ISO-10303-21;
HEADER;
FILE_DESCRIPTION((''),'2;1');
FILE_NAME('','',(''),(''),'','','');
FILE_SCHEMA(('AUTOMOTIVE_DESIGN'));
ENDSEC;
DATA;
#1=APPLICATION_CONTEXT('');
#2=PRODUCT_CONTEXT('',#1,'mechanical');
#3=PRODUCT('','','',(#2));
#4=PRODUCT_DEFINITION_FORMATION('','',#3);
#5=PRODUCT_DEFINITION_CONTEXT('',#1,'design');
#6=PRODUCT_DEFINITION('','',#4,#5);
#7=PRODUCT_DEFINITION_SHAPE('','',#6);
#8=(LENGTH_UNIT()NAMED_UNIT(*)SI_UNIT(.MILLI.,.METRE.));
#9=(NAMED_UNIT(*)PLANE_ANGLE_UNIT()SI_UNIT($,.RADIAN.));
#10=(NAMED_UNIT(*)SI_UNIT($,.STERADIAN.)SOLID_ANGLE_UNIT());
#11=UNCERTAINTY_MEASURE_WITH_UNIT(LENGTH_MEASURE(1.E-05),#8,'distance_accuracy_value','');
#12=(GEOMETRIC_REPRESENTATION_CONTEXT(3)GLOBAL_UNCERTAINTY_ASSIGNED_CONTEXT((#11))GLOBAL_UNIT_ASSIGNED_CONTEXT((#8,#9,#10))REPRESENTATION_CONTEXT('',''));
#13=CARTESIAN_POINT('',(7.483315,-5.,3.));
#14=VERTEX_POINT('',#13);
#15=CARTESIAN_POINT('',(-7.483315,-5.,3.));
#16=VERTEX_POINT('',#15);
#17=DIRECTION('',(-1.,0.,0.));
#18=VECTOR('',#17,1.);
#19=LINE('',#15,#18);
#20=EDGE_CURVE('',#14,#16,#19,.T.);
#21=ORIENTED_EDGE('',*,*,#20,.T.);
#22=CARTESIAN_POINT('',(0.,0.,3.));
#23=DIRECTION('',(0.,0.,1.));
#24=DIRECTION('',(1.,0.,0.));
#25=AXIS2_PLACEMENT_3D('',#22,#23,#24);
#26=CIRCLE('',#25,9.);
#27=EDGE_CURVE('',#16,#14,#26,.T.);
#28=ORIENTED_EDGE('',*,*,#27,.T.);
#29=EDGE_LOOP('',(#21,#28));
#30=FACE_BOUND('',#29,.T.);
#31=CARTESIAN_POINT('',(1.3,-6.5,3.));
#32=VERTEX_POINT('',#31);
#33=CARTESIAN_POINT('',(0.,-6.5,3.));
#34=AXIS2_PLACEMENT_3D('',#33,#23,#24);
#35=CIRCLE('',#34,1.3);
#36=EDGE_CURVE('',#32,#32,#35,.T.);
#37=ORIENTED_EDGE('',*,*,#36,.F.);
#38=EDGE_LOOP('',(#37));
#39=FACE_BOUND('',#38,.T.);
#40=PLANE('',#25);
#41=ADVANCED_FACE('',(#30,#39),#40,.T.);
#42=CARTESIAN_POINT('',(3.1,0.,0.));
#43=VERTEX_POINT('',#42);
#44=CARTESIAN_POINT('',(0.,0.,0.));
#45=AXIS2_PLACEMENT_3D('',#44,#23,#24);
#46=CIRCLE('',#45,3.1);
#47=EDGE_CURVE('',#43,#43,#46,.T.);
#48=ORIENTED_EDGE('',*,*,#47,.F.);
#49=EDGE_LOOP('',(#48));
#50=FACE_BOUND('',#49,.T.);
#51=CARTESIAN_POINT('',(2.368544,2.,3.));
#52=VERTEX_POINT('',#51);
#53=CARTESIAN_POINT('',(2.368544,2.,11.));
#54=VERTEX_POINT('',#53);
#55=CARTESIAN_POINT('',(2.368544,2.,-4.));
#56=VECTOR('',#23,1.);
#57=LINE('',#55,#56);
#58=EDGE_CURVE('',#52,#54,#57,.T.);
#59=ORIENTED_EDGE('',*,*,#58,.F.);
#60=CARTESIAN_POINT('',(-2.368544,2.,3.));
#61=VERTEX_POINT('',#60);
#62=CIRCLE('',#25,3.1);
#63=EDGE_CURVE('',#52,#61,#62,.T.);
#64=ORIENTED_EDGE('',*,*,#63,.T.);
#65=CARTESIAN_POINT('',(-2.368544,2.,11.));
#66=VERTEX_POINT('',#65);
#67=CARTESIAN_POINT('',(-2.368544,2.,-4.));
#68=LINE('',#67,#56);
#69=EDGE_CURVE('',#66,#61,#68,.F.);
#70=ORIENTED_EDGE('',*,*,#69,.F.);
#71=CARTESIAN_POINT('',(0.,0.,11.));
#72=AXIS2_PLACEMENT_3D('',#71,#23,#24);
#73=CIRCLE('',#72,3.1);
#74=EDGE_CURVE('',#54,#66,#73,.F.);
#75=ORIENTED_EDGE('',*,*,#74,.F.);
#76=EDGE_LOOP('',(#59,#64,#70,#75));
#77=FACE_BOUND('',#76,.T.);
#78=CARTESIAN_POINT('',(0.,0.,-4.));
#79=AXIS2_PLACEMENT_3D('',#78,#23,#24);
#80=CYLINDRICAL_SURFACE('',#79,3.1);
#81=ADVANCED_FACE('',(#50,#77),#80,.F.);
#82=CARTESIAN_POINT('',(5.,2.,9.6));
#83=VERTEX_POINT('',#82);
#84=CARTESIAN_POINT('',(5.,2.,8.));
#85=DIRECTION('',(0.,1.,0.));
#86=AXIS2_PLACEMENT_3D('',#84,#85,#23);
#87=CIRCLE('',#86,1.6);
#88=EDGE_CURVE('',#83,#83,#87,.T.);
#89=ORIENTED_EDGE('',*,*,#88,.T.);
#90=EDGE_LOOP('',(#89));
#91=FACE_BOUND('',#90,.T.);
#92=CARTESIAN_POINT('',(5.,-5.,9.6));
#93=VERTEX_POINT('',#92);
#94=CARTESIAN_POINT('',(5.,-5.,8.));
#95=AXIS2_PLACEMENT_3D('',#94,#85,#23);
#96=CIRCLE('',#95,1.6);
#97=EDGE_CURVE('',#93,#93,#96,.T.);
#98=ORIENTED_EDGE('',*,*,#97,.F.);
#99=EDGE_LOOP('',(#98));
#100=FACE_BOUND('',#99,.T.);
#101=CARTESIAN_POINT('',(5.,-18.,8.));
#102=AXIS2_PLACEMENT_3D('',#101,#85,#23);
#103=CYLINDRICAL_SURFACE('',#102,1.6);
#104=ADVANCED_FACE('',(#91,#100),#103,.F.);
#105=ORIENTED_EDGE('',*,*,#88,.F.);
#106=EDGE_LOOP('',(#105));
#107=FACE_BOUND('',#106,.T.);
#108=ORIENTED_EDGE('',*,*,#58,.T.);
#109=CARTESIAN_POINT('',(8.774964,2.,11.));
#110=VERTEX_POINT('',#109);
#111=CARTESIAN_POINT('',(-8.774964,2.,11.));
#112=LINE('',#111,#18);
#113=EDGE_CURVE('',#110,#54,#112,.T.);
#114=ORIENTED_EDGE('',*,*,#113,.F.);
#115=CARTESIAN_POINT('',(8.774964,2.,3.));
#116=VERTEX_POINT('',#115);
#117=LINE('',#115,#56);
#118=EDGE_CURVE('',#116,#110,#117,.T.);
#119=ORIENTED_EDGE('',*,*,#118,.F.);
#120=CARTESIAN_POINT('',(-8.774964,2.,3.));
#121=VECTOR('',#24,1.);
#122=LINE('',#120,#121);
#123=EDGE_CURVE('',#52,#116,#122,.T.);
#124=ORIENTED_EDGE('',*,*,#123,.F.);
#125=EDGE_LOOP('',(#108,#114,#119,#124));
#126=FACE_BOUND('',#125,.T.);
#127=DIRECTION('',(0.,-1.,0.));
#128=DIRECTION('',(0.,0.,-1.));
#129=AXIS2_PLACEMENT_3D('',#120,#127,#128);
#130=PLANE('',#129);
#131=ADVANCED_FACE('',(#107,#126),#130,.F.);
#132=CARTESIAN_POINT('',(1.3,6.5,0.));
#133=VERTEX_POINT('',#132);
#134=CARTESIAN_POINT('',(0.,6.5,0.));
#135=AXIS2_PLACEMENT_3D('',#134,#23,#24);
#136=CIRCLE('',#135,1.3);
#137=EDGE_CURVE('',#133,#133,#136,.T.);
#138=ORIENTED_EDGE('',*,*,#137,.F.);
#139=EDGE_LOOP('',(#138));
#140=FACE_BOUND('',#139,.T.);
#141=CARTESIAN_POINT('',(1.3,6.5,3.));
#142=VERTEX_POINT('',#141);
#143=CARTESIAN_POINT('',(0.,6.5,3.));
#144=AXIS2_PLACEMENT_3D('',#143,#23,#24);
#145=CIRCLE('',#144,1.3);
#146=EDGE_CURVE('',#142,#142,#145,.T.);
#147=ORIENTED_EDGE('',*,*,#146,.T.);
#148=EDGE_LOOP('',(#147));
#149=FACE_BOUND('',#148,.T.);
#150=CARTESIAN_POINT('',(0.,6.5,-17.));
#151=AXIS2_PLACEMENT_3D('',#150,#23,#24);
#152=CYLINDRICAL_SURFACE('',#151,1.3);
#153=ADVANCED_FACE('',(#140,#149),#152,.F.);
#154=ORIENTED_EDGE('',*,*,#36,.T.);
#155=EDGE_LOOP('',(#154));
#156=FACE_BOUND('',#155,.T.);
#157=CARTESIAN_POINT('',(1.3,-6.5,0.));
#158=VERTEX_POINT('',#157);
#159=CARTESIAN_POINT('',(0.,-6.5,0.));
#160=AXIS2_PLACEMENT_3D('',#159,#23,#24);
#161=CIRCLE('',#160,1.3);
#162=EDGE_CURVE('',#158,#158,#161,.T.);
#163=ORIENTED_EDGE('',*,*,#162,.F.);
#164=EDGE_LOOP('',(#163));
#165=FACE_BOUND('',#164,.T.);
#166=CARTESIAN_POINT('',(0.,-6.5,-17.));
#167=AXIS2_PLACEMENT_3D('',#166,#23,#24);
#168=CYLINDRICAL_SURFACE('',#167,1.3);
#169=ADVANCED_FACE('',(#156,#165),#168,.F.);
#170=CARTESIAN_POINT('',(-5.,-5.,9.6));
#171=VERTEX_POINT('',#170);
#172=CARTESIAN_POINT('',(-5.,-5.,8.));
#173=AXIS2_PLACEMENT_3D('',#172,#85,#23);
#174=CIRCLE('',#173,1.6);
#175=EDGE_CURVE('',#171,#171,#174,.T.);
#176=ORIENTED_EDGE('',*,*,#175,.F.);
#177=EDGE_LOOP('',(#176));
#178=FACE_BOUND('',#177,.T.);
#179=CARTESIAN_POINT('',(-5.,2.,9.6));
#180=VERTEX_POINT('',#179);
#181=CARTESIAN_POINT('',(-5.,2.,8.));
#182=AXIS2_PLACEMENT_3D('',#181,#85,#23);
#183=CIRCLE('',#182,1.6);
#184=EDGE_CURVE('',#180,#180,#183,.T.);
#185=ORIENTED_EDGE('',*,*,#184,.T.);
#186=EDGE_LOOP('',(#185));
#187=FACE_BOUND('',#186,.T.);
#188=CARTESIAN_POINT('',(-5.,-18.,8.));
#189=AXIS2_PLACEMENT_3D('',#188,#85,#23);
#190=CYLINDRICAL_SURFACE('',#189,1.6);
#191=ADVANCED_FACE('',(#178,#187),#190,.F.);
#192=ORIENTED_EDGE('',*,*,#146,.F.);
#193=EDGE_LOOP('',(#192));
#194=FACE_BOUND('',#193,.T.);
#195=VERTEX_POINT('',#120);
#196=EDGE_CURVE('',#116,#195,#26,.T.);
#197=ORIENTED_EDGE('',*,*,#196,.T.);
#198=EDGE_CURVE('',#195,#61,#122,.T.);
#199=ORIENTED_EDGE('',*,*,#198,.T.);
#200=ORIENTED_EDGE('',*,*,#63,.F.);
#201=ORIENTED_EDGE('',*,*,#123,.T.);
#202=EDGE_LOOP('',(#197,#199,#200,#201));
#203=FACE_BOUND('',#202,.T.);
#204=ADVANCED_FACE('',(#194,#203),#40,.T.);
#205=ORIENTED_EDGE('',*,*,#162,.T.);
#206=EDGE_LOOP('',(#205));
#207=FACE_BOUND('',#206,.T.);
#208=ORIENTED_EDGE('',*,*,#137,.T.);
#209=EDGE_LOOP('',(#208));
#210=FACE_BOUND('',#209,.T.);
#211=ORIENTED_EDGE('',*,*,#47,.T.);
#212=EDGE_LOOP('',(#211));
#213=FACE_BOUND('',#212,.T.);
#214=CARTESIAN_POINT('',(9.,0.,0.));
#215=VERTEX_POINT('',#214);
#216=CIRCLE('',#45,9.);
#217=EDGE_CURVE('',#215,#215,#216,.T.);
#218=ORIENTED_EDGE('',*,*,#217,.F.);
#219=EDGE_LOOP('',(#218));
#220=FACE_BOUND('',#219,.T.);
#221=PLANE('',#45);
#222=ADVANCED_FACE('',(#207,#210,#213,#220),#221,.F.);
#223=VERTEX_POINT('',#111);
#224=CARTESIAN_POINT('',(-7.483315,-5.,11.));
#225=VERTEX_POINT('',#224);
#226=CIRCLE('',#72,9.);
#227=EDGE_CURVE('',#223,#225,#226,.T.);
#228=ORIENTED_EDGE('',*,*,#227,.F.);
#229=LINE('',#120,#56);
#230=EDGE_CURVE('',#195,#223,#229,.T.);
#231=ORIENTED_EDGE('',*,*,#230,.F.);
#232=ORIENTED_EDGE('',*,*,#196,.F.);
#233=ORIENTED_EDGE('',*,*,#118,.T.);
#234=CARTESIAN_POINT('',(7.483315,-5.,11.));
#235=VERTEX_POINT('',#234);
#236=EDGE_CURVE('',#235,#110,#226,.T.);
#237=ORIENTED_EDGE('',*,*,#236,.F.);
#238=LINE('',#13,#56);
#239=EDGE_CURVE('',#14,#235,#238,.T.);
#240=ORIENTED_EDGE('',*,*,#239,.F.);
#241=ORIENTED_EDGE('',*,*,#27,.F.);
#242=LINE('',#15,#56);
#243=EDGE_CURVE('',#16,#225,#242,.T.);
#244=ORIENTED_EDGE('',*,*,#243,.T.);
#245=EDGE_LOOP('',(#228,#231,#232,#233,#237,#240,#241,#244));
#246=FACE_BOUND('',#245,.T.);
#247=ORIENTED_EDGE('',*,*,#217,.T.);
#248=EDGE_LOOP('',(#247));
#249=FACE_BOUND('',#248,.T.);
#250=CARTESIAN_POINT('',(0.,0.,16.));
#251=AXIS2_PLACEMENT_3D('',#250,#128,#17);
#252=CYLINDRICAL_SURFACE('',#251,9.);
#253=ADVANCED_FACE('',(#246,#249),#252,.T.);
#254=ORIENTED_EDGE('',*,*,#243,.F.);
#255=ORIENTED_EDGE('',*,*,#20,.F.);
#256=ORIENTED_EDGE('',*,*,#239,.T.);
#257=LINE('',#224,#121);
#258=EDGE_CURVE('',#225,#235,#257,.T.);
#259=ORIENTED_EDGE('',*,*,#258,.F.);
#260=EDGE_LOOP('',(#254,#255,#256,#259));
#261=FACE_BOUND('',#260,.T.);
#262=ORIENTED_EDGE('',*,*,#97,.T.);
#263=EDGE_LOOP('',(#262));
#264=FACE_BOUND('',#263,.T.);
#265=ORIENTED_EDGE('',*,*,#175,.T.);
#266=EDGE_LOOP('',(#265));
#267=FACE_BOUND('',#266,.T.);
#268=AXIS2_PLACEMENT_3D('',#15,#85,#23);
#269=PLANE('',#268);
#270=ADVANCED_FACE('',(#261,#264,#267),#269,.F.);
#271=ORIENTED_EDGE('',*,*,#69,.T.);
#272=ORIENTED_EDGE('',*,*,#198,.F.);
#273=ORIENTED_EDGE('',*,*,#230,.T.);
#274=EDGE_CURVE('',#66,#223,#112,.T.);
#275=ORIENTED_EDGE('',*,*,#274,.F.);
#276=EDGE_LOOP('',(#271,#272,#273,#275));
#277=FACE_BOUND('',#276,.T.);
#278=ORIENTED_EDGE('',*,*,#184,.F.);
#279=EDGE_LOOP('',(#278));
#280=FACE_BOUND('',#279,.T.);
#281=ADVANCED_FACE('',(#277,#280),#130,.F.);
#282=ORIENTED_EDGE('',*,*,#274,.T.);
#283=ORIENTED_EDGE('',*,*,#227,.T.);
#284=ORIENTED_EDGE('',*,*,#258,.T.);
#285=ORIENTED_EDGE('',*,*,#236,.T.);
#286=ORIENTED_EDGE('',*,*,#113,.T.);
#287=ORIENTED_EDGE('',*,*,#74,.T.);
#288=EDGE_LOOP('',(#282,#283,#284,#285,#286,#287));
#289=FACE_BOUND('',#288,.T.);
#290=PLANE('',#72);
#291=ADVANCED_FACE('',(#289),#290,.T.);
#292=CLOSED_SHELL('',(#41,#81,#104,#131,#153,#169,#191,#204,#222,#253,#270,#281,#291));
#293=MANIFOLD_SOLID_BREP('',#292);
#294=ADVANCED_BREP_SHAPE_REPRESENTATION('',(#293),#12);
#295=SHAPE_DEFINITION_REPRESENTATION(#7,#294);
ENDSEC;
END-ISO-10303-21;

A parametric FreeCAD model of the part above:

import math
import FreeCAD as App
import Part
import Sketcher
from FreeCAD import Vector

doc = App.newDocument("Part")
body = doc.addObject("PartDesign::Body", "Body")

# Sketch on XY plane
sketch1 = body.newObject("Sketcher::SketchObject", "Sketch")
sketch1.AttachmentSupport = (doc.getObject("XY_Plane"), [""])
sketch1.MapMode = "FlatFace"
sketch1.addGeometry(Part.Circle(Vector(0, 0, 0), Vector(0, 0, 1), 10), False)
sketch1.addConstraint([
    Sketcher.Constraint("Coincident", 0, 3, -1, 1),
    Sketcher.Constraint("Diameter", 0, 19.0),
])
pad1 = body.newObject("PartDesign::Pad", "Pad")
pad1.Profile = sketch1
pad1.Length = 3

# Sketch on XY plane
sketch2 = body.newObject("Sketcher::SketchObject", "Sketch001")
sketch2.AttachmentSupport = (doc.getObject("XY_Plane"), [""])
sketch2.MapMode = "FlatFace"
sketch2.AttachmentOffset = App.Placement(Vector(0, 0, 3), App.Rotation())
sketch2.addGeometry(Part.Circle(Vector(0, 0, 0), Vector(0, 0, 1), 9), False)
sketch2.addConstraint([
    Sketcher.Constraint("Coincident", 0, 3, -1, 1),
    Sketcher.Constraint("Diameter", 0, 18.0),
])
pad2 = body.newObject("PartDesign::Pad", "Pad001")
pad2.Profile = sketch2
pad2.Length = 13

# Sketch on XY plane
sketch3 = body.newObject("Sketcher::SketchObject", "Sketch002")
sketch3.AttachmentSupport = (doc.getObject("XY_Plane"), [""])
sketch3.MapMode = "FlatFace"
sketch3.AttachmentOffset = App.Placement(Vector(0, 0, 3), App.Rotation())
sketch3.addGeometry([
    Part.LineSegment(Vector(-9, 2, 0), Vector(9, 2, 0)),
    Part.ArcOfCircle(Part.Circle(Vector(0, 0, 0), Vector(0, 0, 1), 9), math.radians(13), math.radians(167)),
    Part.LineSegment(Vector(7, -5, 0), Vector(-7, -5, 0)),
    Part.ArcOfCircle(Part.Circle(Vector(0, 0, 0), Vector(0, 0, 1), 9), math.radians(-146), math.radians(-34)),
], False)
sketch3.addConstraint([
    Sketcher.Constraint("Coincident", 0, 1, 1, 2),
    Sketcher.Constraint("Coincident", 1, 1, 0, 2),
    Sketcher.Constraint("Coincident", 2, 1, 3, 2),
    Sketcher.Constraint("Coincident", 3, 1, 2, 2),
    Sketcher.Constraint("Horizontal", 0),
    Sketcher.Constraint("Horizontal", 2),
    Sketcher.Constraint("Coincident", 1, 3, -1, 1),
    Sketcher.Constraint("Coincident", 3, 3, -1, 1),
    Sketcher.Constraint("Equal", 1, 3),
    Sketcher.Constraint("Radius", 1, 9.0),
    Sketcher.Constraint("DistanceY", -1, 1, 0, 1, 2.0),
    Sketcher.Constraint("DistanceY", 2, 1, -1, 1, 5.0),
])
pocket1 = body.newObject("PartDesign::Pocket", "Pocket")
pocket1.Profile = sketch3
pocket1.Length = 13
pocket1.Reversed = True

# Sketch on XY plane
sketch4 = body.newObject("Sketcher::SketchObject", "Sketch003")
sketch4.AttachmentSupport = (doc.getObject("XY_Plane"), [""])
sketch4.MapMode = "FlatFace"
sketch4.AttachmentOffset = App.Placement(Vector(0, 0, 16), App.Rotation())
sketch4.addGeometry(Part.Circle(Vector(0, 0, 0), Vector(0, 0, 1), 3.1), False)
sketch4.addConstraint([
    Sketcher.Constraint("Coincident", 0, 3, -1, 1),
    Sketcher.Constraint("Diameter", 0, 6.2),
])
pocket2 = body.newObject("PartDesign::Pocket", "Pocket001")
pocket2.Profile = sketch4
pocket2.Length = 20

# Sketch on XZ plane
sketch5 = body.newObject("Sketcher::SketchObject", "Sketch004")
sketch5.AttachmentSupport = (doc.getObject("XZ_Plane"), [""])
sketch5.MapMode = "FlatFace"
sketch5.AttachmentOffset = App.Placement(Vector(0, 0, -2), App.Rotation())
sketch5.addGeometry([
    Part.Circle(Vector(-5, 8, 0), Vector(0, 0, 1), 1.6),
    Part.Circle(Vector(5, 8, 0), Vector(0, 0, 1), 1.6),
    Part.Circle(Vector(0, 14, 0), Vector(0, 0, 1), 1.6),
], False)
sketch5.addConstraint([
    Sketcher.Constraint("Equal", 0, 1),
    Sketcher.Constraint("Equal", 1, 2),
    Sketcher.Constraint("Symmetric", 0, 3, 1, 3, -2),
    Sketcher.Constraint("PointOnObject", 2, 3, -2),
    Sketcher.Constraint("Diameter", 0, 3.2),
    Sketcher.Constraint("DistanceX", 0, 3, -1, 1, 5.0),
    Sketcher.Constraint("DistanceY", -1, 1, 0, 3, 8.0),
    Sketcher.Constraint("DistanceY", -1, 1, 2, 3, 14.0),
])
pocket3 = body.newObject("PartDesign::Pocket", "Pocket002")
pocket3.Profile = sketch5
pocket3.Length = 20
pocket3.Reversed = True

# Sketch on XY plane
sketch6 = body.newObject("Sketcher::SketchObject", "Sketch005")
sketch6.AttachmentSupport = (doc.getObject("XY_Plane"), [""])
sketch6.MapMode = "FlatFace"
sketch6.AttachmentOffset = App.Placement(Vector(0, 0, 3), App.Rotation())
sketch6.addGeometry([
    Part.Circle(Vector(0, 6.5, 0), Vector(0, 0, 1), 1.3),
    Part.Circle(Vector(0, -6.5, 0), Vector(0, 0, 1), 1.3),
], False)
sketch6.addConstraint([
    Sketcher.Constraint("Equal", 0, 1),
    Sketcher.Constraint("Symmetric", 0, 3, 1, 3, -1, 1),
    Sketcher.Constraint("PointOnObject", 0, 3, -2),
    Sketcher.Constraint("Diameter", 0, 2.6),
    Sketcher.Constraint("DistanceY", 1, 3, 0, 3, 13.0),
])
pocket4 = body.newObject("PartDesign::Pocket", "Pocket003")
pocket4.Profile = sketch6
pocket4.Length = 20

# Sketch on XY plane
sketch7 = body.newObject("Sketcher::SketchObject", "Sketch006")
sketch7.AttachmentSupport = (doc.getObject("XY_Plane"), [""])
sketch7.MapMode = "FlatFace"
sketch7.AttachmentOffset = App.Placement(Vector(0, 0, 11), App.Rotation())
sketch7.addGeometry(Part.Circle(Vector(0, 0, 0), Vector(0, 0, 1), 9), False)
sketch7.addConstraint([
    Sketcher.Constraint("Coincident", 0, 3, -1, 1),
    Sketcher.Constraint("Diameter", 0, 18.0),
])
pocket5 = body.newObject("PartDesign::Pocket", "Pocket004")
pocket5.Profile = sketch7
pocket5.Length = 5
pocket5.Reversed = True

# Sketch on XY plane
sketch8 = body.newObject("Sketcher::SketchObject", "Sketch007")
sketch8.AttachmentSupport = (doc.getObject("XY_Plane"), [""])
sketch8.MapMode = "FlatFace"
sketch8.AttachmentOffset = App.Placement(Vector(0, 0, 3), App.Rotation())
sketch8.addGeometry([
    Part.LineSegment(Vector(-13, 13, 0), Vector(-13, -13, 0)),  # 0
    Part.LineSegment(Vector(-13, -13, 0), Vector(13, -13, 0)),  # 1
    Part.LineSegment(Vector(13, -13, 0), Vector(13, 13, 0)),  # 2
    Part.LineSegment(Vector(13, 13, 0), Vector(-13, 13, 0)),  # 3
    Part.Circle(Vector(0, 0, 0), Vector(0, 0, 1), 9),  # 4
], False)
sketch8.addConstraint([
    Sketcher.Constraint("Coincident", 0, 2, 1, 1),
    Sketcher.Constraint("Coincident", 1, 2, 2, 1),
    Sketcher.Constraint("Coincident", 2, 2, 3, 1),
    Sketcher.Constraint("Coincident", 3, 2, 0, 1),
    Sketcher.Constraint("Vertical", 0),
    Sketcher.Constraint("Horizontal", 1),
    Sketcher.Constraint("Vertical", 2),
    Sketcher.Constraint("Horizontal", 3),
    Sketcher.Constraint("Coincident", 4, 3, -1, 1),
    Sketcher.Constraint("Symmetric", 0, 2, 2, 2, -1, 1),
    Sketcher.Constraint("Equal", 3, 0),
    Sketcher.Constraint("Diameter", 4, 18.0),
    Sketcher.Constraint("DistanceX", 1, 1, 1, 2, 26.806),
])
pocket6 = body.newObject("PartDesign::Pocket", "Pocket005")
pocket6.Profile = sketch8
pocket6.Length = 13

doc.recompute()
